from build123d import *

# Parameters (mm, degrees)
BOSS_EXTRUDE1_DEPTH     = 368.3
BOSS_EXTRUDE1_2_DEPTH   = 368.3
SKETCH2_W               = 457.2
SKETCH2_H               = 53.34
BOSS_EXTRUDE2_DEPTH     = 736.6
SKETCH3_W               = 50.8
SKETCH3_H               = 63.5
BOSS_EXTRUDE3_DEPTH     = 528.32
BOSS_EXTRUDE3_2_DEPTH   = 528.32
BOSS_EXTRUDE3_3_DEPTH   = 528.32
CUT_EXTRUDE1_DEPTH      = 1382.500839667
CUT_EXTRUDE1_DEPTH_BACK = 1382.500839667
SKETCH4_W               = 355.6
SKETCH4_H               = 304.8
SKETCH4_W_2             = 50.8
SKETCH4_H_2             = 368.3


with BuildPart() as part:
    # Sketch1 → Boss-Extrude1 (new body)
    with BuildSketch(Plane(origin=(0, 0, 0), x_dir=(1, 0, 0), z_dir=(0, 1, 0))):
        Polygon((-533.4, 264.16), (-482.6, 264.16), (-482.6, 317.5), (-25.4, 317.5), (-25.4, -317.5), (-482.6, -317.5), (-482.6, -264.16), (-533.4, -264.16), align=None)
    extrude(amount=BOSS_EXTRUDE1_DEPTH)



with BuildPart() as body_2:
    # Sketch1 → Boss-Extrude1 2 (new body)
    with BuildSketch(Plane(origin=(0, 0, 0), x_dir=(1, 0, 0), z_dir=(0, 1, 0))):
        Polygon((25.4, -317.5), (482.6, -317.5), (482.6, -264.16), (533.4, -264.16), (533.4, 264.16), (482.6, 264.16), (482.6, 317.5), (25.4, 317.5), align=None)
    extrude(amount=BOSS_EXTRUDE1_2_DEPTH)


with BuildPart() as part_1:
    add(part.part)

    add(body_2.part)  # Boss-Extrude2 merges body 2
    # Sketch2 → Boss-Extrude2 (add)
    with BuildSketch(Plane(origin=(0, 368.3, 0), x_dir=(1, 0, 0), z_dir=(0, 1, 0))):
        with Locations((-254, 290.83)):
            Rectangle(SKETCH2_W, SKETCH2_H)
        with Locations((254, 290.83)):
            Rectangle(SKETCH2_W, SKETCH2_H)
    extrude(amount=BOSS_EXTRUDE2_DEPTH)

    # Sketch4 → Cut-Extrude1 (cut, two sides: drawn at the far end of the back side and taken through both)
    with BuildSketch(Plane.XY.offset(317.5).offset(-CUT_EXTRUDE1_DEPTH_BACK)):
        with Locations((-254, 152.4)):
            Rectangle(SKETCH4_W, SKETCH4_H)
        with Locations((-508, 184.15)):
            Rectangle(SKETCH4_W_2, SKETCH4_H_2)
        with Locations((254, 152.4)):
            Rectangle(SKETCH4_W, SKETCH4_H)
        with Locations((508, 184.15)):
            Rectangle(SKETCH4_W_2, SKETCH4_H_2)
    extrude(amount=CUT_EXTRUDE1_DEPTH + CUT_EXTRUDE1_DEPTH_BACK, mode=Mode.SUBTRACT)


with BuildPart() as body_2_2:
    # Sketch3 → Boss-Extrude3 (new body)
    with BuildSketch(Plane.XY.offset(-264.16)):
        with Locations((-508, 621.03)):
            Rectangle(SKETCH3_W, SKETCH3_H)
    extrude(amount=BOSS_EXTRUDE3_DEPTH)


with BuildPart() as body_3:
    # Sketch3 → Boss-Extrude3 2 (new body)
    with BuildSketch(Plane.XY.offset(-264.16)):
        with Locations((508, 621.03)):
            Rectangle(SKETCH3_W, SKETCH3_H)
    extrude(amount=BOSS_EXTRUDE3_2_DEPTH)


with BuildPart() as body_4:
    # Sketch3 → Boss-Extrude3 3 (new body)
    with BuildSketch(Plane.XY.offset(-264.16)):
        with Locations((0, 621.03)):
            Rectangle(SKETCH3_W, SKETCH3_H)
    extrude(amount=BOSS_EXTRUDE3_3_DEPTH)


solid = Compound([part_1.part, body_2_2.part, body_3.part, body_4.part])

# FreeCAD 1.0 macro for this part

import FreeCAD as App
import Part
import Sketcher
Q = App.Units.Quantity

doc = App.newDocument("Part")
params = doc.addObject("Spreadsheet::Sheet", "Params")
for row, (alias, value) in enumerate([
    ("sketch1_width", "2 in"),
    ("sketch1_width2", "18 in"),
    ("sketch1_height", "25 in"),
    ("sketch1_height2", "20.8 in"),
    ("pad1_length", "14.5 in"),
    ("sketch2_width", "18 in"),
    ("sketch2_width2", "2 in"),
    ("sketch2_height", "25 in"),
    ("sketch2_height2", "2.1 in"),
    ("pad2_length", "14.5 in"),
    ("sketch3_width", "18 in"),
    ("sketch3_height", "2.1 in"),
    ("pad3_length", "29 in"),
    ("sketch4_width", "14 in"),
    ("sketch4_width2", "2 in"),
    ("sketch4_height", "12 in"),
    ("sketch4_height2", "14.5 in"),
    ("sketch5_width", "2 in"),
    ("sketch5_height", "2.5 in"),
    ("pad4_length", "20.8 in"),
    ("sketch6_width", "2 in"),
    ("sketch6_height", "2.5 in"),
    ("pad5_length", "20.8 in"),
    ("sketch7_width", "2 in"),
    ("sketch7_height", "2.5 in"),
    ("pad6_length", "20.8 in"),
], start=1):
    params.set(f"A{row}", alias)
    params.set(f"B{row}", "=" + value)
    params.setAlias(f"B{row}", alias)

body = doc.addObject("PartDesign::Body", "Body")

# Sketch on XZ plane
sketch1 = body.newObject("Sketcher::SketchObject", "Sketch")
sketch1.AttachmentSupport = (doc.getObject("XZ_Plane"), [""])
sketch1.MapMode = "FlatFace"
sketch1.addGeometry(Part.LineSegment(App.Vector(-483, -264, 0), App.Vector(-533, -264, 0)), False)
sketch1.addGeometry(Part.LineSegment(App.Vector(-533, -264, 0), App.Vector(-533, 264, 0)), False)
sketch1.addGeometry(Part.LineSegment(App.Vector(-533, 264, 0), App.Vector(-483, 264, 0)), False)
sketch1.addGeometry(Part.LineSegment(App.Vector(-483, 264, 0), App.Vector(-483, 318, 0)), False)
sketch1.addGeometry(Part.LineSegment(App.Vector(-483, 318, 0), App.Vector(-25, 318, 0)), False)
sketch1.addGeometry(Part.LineSegment(App.Vector(-25, 318, 0), App.Vector(-25, -318, 0)), False)
sketch1.addGeometry(Part.LineSegment(App.Vector(-25, -318, 0), App.Vector(-483, -318, 0)), False)
sketch1.addGeometry(Part.LineSegment(App.Vector(-483, -318, 0), App.Vector(-483, -264, 0)), False)
sketch1.addConstraint(Sketcher.Constraint("Coincident", 0, 2, 1, 1))
sketch1.addConstraint(Sketcher.Constraint("Coincident", 1, 2, 2, 1))
sketch1.addConstraint(Sketcher.Constraint("Coincident", 2, 2, 3, 1))
sketch1.addConstraint(Sketcher.Constraint("Coincident", 3, 2, 4, 1))
sketch1.addConstraint(Sketcher.Constraint("Coincident", 4, 2, 5, 1))
sketch1.addConstraint(Sketcher.Constraint("Coincident", 5, 2, 6, 1))
sketch1.addConstraint(Sketcher.Constraint("Coincident", 6, 2, 7, 1))
sketch1.addConstraint(Sketcher.Constraint("Coincident", 7, 2, 0, 1))
sketch1.addConstraint(Sketcher.Constraint("Horizontal", 0))
sketch1.addConstraint(Sketcher.Constraint("Vertical", 1))
sketch1.addConstraint(Sketcher.Constraint("Horizontal", 2))
sketch1.addConstraint(Sketcher.Constraint("Vertical", 3))
sketch1.addConstraint(Sketcher.Constraint("Horizontal", 4))
sketch1.addConstraint(Sketcher.Constraint("Vertical", 5))
sketch1.addConstraint(Sketcher.Constraint("Horizontal", 6))
sketch1.addConstraint(Sketcher.Constraint("Vertical", 7))
sketch1.addConstraint(Sketcher.Constraint("Symmetric", 3, 2, 6, 2, -1))
sketch1.addConstraint(Sketcher.Constraint("Equal", 3, 7))
sketch1.addConstraint(Sketcher.Constraint("DistanceX", 0, 2, 0, 1, Q("2 in")))
sketch1.addConstraint(Sketcher.Constraint("DistanceX", 4, 1, 4, 2, Q("18 in")))
sketch1.addConstraint(Sketcher.Constraint("DistanceY", 5, 2, 5, 1, Q("25 in")))
sketch1.addConstraint(Sketcher.Constraint("DistanceY", 1, 1, 1, 2, Q("20.8 in")))
sketch1.addConstraint(Sketcher.Constraint("DistanceX", 0, 2, -1, 1, Q("21 in")))
sketch1.setExpression("Constraints[18]", "Params.sketch1_width")
sketch1.setExpression("Constraints[19]", "Params.sketch1_width2")
sketch1.setExpression("Constraints[20]", "Params.sketch1_height")
sketch1.setExpression("Constraints[21]", "Params.sketch1_height2")
pad1 = body.newObject("PartDesign::Pad", "Pad")
pad1.Profile = sketch1
pad1.setExpression("Length", "Params.pad1_length")
pad1.Reversed = True
body2 = doc.addObject("PartDesign::Body", "Body001")

# Sketch on XZ plane
sketch2 = body2.newObject("Sketcher::SketchObject", "Sketch001")
sketch2.AttachmentSupport = (doc.getObject("XZ_Plane001"), [""])
sketch2.MapMode = "FlatFace"
sketch2.addGeometry(Part.LineSegment(App.Vector(25, 318, 0), App.Vector(483, 318, 0)), False)
sketch2.addGeometry(Part.LineSegment(App.Vector(483, 318, 0), App.Vector(483, 264, 0)), False)
sketch2.addGeometry(Part.LineSegment(App.Vector(483, 264, 0), App.Vector(533, 264, 0)), False)
sketch2.addGeometry(Part.LineSegment(App.Vector(533, 264, 0), App.Vector(533, -264, 0)), False)
sketch2.addGeometry(Part.LineSegment(App.Vector(533, -264, 0), App.Vector(483, -264, 0)), False)
sketch2.addGeometry(Part.LineSegment(App.Vector(483, -264, 0), App.Vector(483, -318, 0)), False)
sketch2.addGeometry(Part.LineSegment(App.Vector(483, -318, 0), App.Vector(25, -318, 0)), False)
sketch2.addGeometry(Part.LineSegment(App.Vector(25, -318, 0), App.Vector(25, 318, 0)), False)
sketch2.addConstraint(Sketcher.Constraint("Coincident", 0, 2, 1, 1))
sketch2.addConstraint(Sketcher.Constraint("Coincident", 1, 2, 2, 1))
sketch2.addConstraint(Sketcher.Constraint("Coincident", 2, 2, 3, 1))
sketch2.addConstraint(Sketcher.Constraint("Coincident", 3, 2, 4, 1))
sketch2.addConstraint(Sketcher.Constraint("Coincident", 4, 2, 5, 1))
sketch2.addConstraint(Sketcher.Constraint("Coincident", 5, 2, 6, 1))
sketch2.addConstraint(Sketcher.Constraint("Coincident", 6, 2, 7, 1))
sketch2.addConstraint(Sketcher.Constraint("Coincident", 7, 2, 0, 1))
sketch2.addConstraint(Sketcher.Constraint("Horizontal", 0))
sketch2.addConstraint(Sketcher.Constraint("Vertical", 1))
sketch2.addConstraint(Sketcher.Constraint("Horizontal", 2))
sketch2.addConstraint(Sketcher.Constraint("Vertical", 3))
sketch2.addConstraint(Sketcher.Constraint("Horizontal", 4))
sketch2.addConstraint(Sketcher.Constraint("Vertical", 5))
sketch2.addConstraint(Sketcher.Constraint("Horizontal", 6))
sketch2.addConstraint(Sketcher.Constraint("Vertical", 7))
sketch2.addConstraint(Sketcher.Constraint("Symmetric", 1, 2, 4, 2, -1))
sketch2.addConstraint(Sketcher.Constraint("Equal", 1, 5))
sketch2.addConstraint(Sketcher.Constraint("DistanceX", 0, 1, 0, 2, Q("18 in")))
sketch2.addConstraint(Sketcher.Constraint("DistanceX", 2, 1, 2, 2, Q("2 in")))
sketch2.addConstraint(Sketcher.Constraint("DistanceY", 7, 1, 7, 2, Q("25 in")))
sketch2.addConstraint(Sketcher.Constraint("DistanceY", 1, 2, 1, 1, Q("2.1 in")))
sketch2.addConstraint(Sketcher.Constraint("DistanceX", -1, 1, 0, 2, Q("19 in")))
sketch2.setExpression("Constraints[18]", "Params.sketch2_width")
sketch2.setExpression("Constraints[19]", "Params.sketch2_width2")
sketch2.setExpression("Constraints[20]", "Params.sketch2_height")
sketch2.setExpression("Constraints[21]", "Params.sketch2_height2")
pad2 = body2.newObject("PartDesign::Pad", "Pad001")
pad2.Profile = sketch2
pad2.setExpression("Length", "Params.pad2_length")
pad2.Reversed = True
body.AllowCompound = True
doc.recompute()

boolean = body.newObject("PartDesign::Boolean", "Boolean")
boolean.Type = "Fuse"
boolean.addObjects([body2])

# Sketch on XZ plane
sketch3 = body.newObject("Sketcher::SketchObject", "Sketch002")
sketch3.AttachmentSupport = (doc.getObject("XZ_Plane"), [""])
sketch3.MapMode = "FlatFace"
sketch3.AttachmentOffset = App.Placement(App.Vector(0, 0, -14.5 * 25.4), App.Rotation())
sketch3.addGeometry(Part.LineSegment(App.Vector(-483, -318, 0), App.Vector(-483, -264, 0)), False)
sketch3.addGeometry(Part.LineSegment(App.Vector(-483, -264, 0), App.Vector(-25, -264, 0)), False)
sketch3.addGeometry(Part.LineSegment(App.Vector(-25, -264, 0), App.Vector(-25, -318, 0)), False)
sketch3.addGeometry(Part.LineSegment(App.Vector(-25, -318, 0), App.Vector(-483, -318, 0)), False)
sketch3.addGeometry(Part.LineSegment(App.Vector(25, -318, 0), App.Vector(25, -264, 0)), False)
sketch3.addGeometry(Part.LineSegment(App.Vector(25, -264, 0), App.Vector(483, -264, 0)), False)
sketch3.addGeometry(Part.LineSegment(App.Vector(483, -264, 0), App.Vector(483, -318, 0)), False)
sketch3.addGeometry(Part.LineSegment(App.Vector(483, -318, 0), App.Vector(25, -318, 0)), False)
sketch3.addConstraint(Sketcher.Constraint("Coincident", 0, 2, 1, 1))
sketch3.addConstraint(Sketcher.Constraint("Coincident", 1, 2, 2, 1))
sketch3.addConstraint(Sketcher.Constraint("Coincident", 2, 2, 3, 1))
sketch3.addConstraint(Sketcher.Constraint("Coincident", 3, 2, 0, 1))
sketch3.addConstraint(Sketcher.Constraint("Coincident", 4, 2, 5, 1))
sketch3.addConstraint(Sketcher.Constraint("Coincident", 5, 2, 6, 1))
sketch3.addConstraint(Sketcher.Constraint("Coincident", 6, 2, 7, 1))
sketch3.addConstraint(Sketcher.Constraint("Coincident", 7, 2, 4, 1))
sketch3.addConstraint(Sketcher.Constraint("Vertical", 0))
sketch3.addConstraint(Sketcher.Constraint("Horizontal", 1))
sketch3.addConstraint(Sketcher.Constraint("Vertical", 2))
sketch3.addConstraint(Sketcher.Constraint("Horizontal", 3))
sketch3.addConstraint(Sketcher.Constraint("Vertical", 4))
sketch3.addConstraint(Sketcher.Constraint("Horizontal", 5))
sketch3.addConstraint(Sketcher.Constraint("Vertical", 6))
sketch3.addConstraint(Sketcher.Constraint("Horizontal", 7))
sketch3.addConstraint(Sketcher.Constraint("Symmetric", 1, 2, 4, 2, -2))
sketch3.addConstraint(Sketcher.Constraint("Symmetric", 3, 2, 6, 2, -2))
sketch3.addConstraint(Sketcher.Constraint("DistanceX", 1, 1, 1, 2, Q("18 in")))
sketch3.addConstraint(Sketcher.Constraint("DistanceY", 0, 1, 0, 2, Q("2.1 in")))
sketch3.addConstraint(Sketcher.Constraint("DistanceX", 0, 2, -1, 1, Q("19 in")))
sketch3.addConstraint(Sketcher.Constraint("DistanceY", 0, 2, -1, 1, Q("10.4 in")))
sketch3.setExpression("Constraints[18]", "Params.sketch3_width")
sketch3.setExpression("Constraints[19]", "Params.sketch3_height")
pad3 = body.newObject("PartDesign::Pad", "Pad002")
pad3.Profile = sketch3
pad3.setExpression("Length", "Params.pad3_length")
pad3.Reversed = True

# Sketch on XY plane
sketch4 = body.newObject("Sketcher::SketchObject", "Sketch003")
sketch4.AttachmentSupport = (doc.getObject("XY_Plane"), [""])
sketch4.MapMode = "FlatFace"
sketch4.AttachmentOffset = App.Placement(App.Vector(0, 0, 12.5 * 25.4), App.Rotation())
sketch4.addGeometry(Part.LineSegment(App.Vector(-432, 305, 0), App.Vector(-432, 0, 0)), False)
sketch4.addGeometry(Part.LineSegment(App.Vector(-432, 0, 0), App.Vector(-76, 0, 0)), False)
sketch4.addGeometry(Part.LineSegment(App.Vector(-76, 0, 0), App.Vector(-76, 305, 0)), False)
sketch4.addGeometry(Part.LineSegment(App.Vector(-76, 305, 0), App.Vector(-432, 305, 0)), False)
sketch4.addGeometry(Part.LineSegment(App.Vector(-533, 368, 0), App.Vector(-533, 0, 0)), False)
sketch4.addGeometry(Part.LineSegment(App.Vector(-533, 0, 0), App.Vector(-483, 0, 0)), False)
sketch4.addGeometry(Part.LineSegment(App.Vector(-483, 0, 0), App.Vector(-483, 368, 0)), False)
sketch4.addGeometry(Part.LineSegment(App.Vector(-483, 368, 0), App.Vector(-533, 368, 0)), False)
sketch4.addGeometry(Part.LineSegment(App.Vector(76, 305, 0), App.Vector(76, 0, 0)), False)
sketch4.addGeometry(Part.LineSegment(App.Vector(76, 0, 0), App.Vector(432, 0, 0)), False)
sketch4.addGeometry(Part.LineSegment(App.Vector(432, 0, 0), App.Vector(432, 305, 0)), False)
sketch4.addGeometry(Part.LineSegment(App.Vector(432, 305, 0), App.Vector(76, 305, 0)), False)
sketch4.addGeometry(Part.LineSegment(App.Vector(483, 368, 0), App.Vector(483, 0, 0)), False)
sketch4.addGeometry(Part.LineSegment(App.Vector(483, 0, 0), App.Vector(533, 0, 0)), False)
sketch4.addGeometry(Part.LineSegment(App.Vector(533, 0, 0), App.Vector(533, 368, 0)), False)
sketch4.addGeometry(Part.LineSegment(App.Vector(533, 368, 0), App.Vector(483, 368, 0)), False)
sketch4.addConstraint(Sketcher.Constraint("Coincident", 0, 2, 1, 1))
sketch4.addConstraint(Sketcher.Constraint("Coincident", 1, 2, 2, 1))
sketch4.addConstraint(Sketcher.Constraint("Coincident", 2, 2, 3, 1))
sketch4.addConstraint(Sketcher.Constraint("Coincident", 3, 2, 0, 1))
sketch4.addConstraint(Sketcher.Constraint("Coincident", 4, 2, 5, 1))
sketch4.addConstraint(Sketcher.Constraint("Coincident", 5, 2, 6, 1))
sketch4.addConstraint(Sketcher.Constraint("Coincident", 6, 2, 7, 1))
sketch4.addConstraint(Sketcher.Constraint("Coincident", 7, 2, 4, 1))
sketch4.addConstraint(Sketcher.Constraint("Coincident", 8, 2, 9, 1))
sketch4.addConstraint(Sketcher.Constraint("Coincident", 9, 2, 10, 1))
sketch4.addConstraint(Sketcher.Constraint("Coincident", 10, 2, 11, 1))
sketch4.addConstraint(Sketcher.Constraint("Coincident", 11, 2, 8, 1))
sketch4.addConstraint(Sketcher.Constraint("Coincident", 12, 2, 13, 1))
sketch4.addConstraint(Sketcher.Constraint("Coincident", 13, 2, 14, 1))
sketch4.addConstraint(Sketcher.Constraint("Coincident", 14, 2, 15, 1))
sketch4.addConstraint(Sketcher.Constraint("Coincident", 15, 2, 12, 1))
sketch4.addConstraint(Sketcher.Constraint("Vertical", 0))
sketch4.addConstraint(Sketcher.Constraint("Horizontal", 1))
sketch4.addConstraint(Sketcher.Constraint("Vertical", 2))
sketch4.addConstraint(Sketcher.Constraint("Horizontal", 3))
sketch4.addConstraint(Sketcher.Constraint("Vertical", 4))
sketch4.addConstraint(Sketcher.Constraint("Horizontal", 5))
sketch4.addConstraint(Sketcher.Constraint("Vertical", 6))
sketch4.addConstraint(Sketcher.Constraint("Horizontal", 7))
sketch4.addConstraint(Sketcher.Constraint("Vertical", 8))
sketch4.addConstraint(Sketcher.Constraint("Horizontal", 9))
sketch4.addConstraint(Sketcher.Constraint("Vertical", 10))
sketch4.addConstraint(Sketcher.Constraint("Horizontal", 11))
sketch4.addConstraint(Sketcher.Constraint("Vertical", 12))
sketch4.addConstraint(Sketcher.Constraint("Horizontal", 13))
sketch4.addConstraint(Sketcher.Constraint("Vertical", 14))
sketch4.addConstraint(Sketcher.Constraint("Horizontal", 15))
sketch4.addConstraint(Sketcher.Constraint("Symmetric", 1, 2, 8, 2, -1, 1))
sketch4.addConstraint(Sketcher.Constraint("Symmetric", 5, 2, 12, 2, -1, 1))
sketch4.addConstraint(Sketcher.Constraint("Symmetric", 0, 2, 9, 2, -2))
sketch4.addConstraint(Sketcher.Constraint("Symmetric", 4, 2, 13, 2, -2))
sketch4.addConstraint(Sketcher.Constraint("Horizontal", 3, 2, 10, 2))
sketch4.addConstraint(Sketcher.Constraint("Horizontal", 7, 2, 14, 2))
sketch4.addConstraint(Sketcher.Constraint("DistanceX", 1, 1, 1, 2, Q("14 in")))
sketch4.addConstraint(Sketcher.Constraint("DistanceX", 5, 1, 5, 2, Q("2 in")))
sketch4.addConstraint(Sketcher.Constraint("DistanceY", 0, 2, 0, 1, Q("12 in")))
sketch4.addConstraint(Sketcher.Constraint("DistanceY", 4, 2, 4, 1, Q("14.5 in")))
sketch4.addConstraint(Sketcher.Constraint("DistanceX", 0, 2, -1, 1, Q("17 in")))
sketch4.addConstraint(Sketcher.Constraint("DistanceX", 4, 2, -1, 1, Q("21 in")))
sketch4.setExpression("Constraints[38]", "Params.sketch4_width")
sketch4.setExpression("Constraints[39]", "Params.sketch4_width2")
sketch4.setExpression("Constraints[40]", "Params.sketch4_height")
sketch4.setExpression("Constraints[41]", "Params.sketch4_height2")
pocket1 = body.newObject("PartDesign::Pocket", "Pocket")
pocket1.Profile = sketch4
pocket1.Type = "ThroughAll"
pocket1.Midplane = True
body3 = doc.addObject("PartDesign::Body", "Body002")

# Sketch on XY plane
sketch5 = body3.newObject("Sketcher::SketchObject", "Sketch004")
sketch5.AttachmentSupport = (doc.getObject("XY_Plane002"), [""])
sketch5.MapMode = "FlatFace"
sketch5.AttachmentOffset = App.Placement(App.Vector(0, 0, -10.4 * 25.4), App.Rotation())
sketch5.addGeometry(Part.LineSegment(App.Vector(-533, 653, 0), App.Vector(-533, 589, 0)), False)
sketch5.addGeometry(Part.LineSegment(App.Vector(-533, 589, 0), App.Vector(-483, 589, 0)), False)
sketch5.addGeometry(Part.LineSegment(App.Vector(-483, 589, 0), App.Vector(-483, 653, 0)), False)
sketch5.addGeometry(Part.LineSegment(App.Vector(-483, 653, 0), App.Vector(-533, 653, 0)), False)
sketch5.addConstraint(Sketcher.Constraint("Coincident", 0, 2, 1, 1))
sketch5.addConstraint(Sketcher.Constraint("Coincident", 1, 2, 2, 1))
sketch5.addConstraint(Sketcher.Constraint("Coincident", 2, 2, 3, 1))
sketch5.addConstraint(Sketcher.Constraint("Coincident", 3, 2, 0, 1))
sketch5.addConstraint(Sketcher.Constraint("Vertical", 0))
sketch5.addConstraint(Sketcher.Constraint("Horizontal", 1))
sketch5.addConstraint(Sketcher.Constraint("Vertical", 2))
sketch5.addConstraint(Sketcher.Constraint("Horizontal", 3))
sketch5.addConstraint(Sketcher.Constraint("DistanceX", 1, 1, 1, 2, Q("2 in")))
sketch5.addConstraint(Sketcher.Constraint("DistanceY", 0, 2, 0, 1, Q("2.5 in")))
sketch5.addConstraint(Sketcher.Constraint("DistanceX", 0, 2, -1, 1, Q("21 in")))
sketch5.addConstraint(Sketcher.Constraint("DistanceY", -1, 1, 0, 2, Q("23.2 in")))
sketch5.setExpression("Constraints[8]", "Params.sketch5_width")
sketch5.setExpression("Constraints[9]", "Params.sketch5_height")
pad4 = body3.newObject("PartDesign::Pad", "Pad003")
pad4.Profile = sketch5
pad4.setExpression("Length", "Params.pad4_length")
body4 = doc.addObject("PartDesign::Body", "Body003")

# Sketch on XY plane
sketch6 = body4.newObject("Sketcher::SketchObject", "Sketch005")
sketch6.AttachmentSupport = (doc.getObject("XY_Plane003"), [""])
sketch6.MapMode = "FlatFace"
sketch6.AttachmentOffset = App.Placement(App.Vector(0, 0, -10.4 * 25.4), App.Rotation())
sketch6.addGeometry(Part.LineSegment(App.Vector(483, 653, 0), App.Vector(483, 589, 0)), False)
sketch6.addGeometry(Part.LineSegment(App.Vector(483, 589, 0), App.Vector(533, 589, 0)), False)
sketch6.addGeometry(Part.LineSegment(App.Vector(533, 589, 0), App.Vector(533, 653, 0)), False)
sketch6.addGeometry(Part.LineSegment(App.Vector(533, 653, 0), App.Vector(483, 653, 0)), False)
sketch6.addConstraint(Sketcher.Constraint("Coincident", 0, 2, 1, 1))
sketch6.addConstraint(Sketcher.Constraint("Coincident", 1, 2, 2, 1))
sketch6.addConstraint(Sketcher.Constraint("Coincident", 2, 2, 3, 1))
sketch6.addConstraint(Sketcher.Constraint("Coincident", 3, 2, 0, 1))
sketch6.addConstraint(Sketcher.Constraint("Vertical", 0))
sketch6.addConstraint(Sketcher.Constraint("Horizontal", 1))
sketch6.addConstraint(Sketcher.Constraint("Vertical", 2))
sketch6.addConstraint(Sketcher.Constraint("Horizontal", 3))
sketch6.addConstraint(Sketcher.Constraint("DistanceX", 1, 1, 1, 2, Q("2 in")))
sketch6.addConstraint(Sketcher.Constraint("DistanceY", 0, 2, 0, 1, Q("2.5 in")))
sketch6.addConstraint(Sketcher.Constraint("DistanceX", -1, 1, 0, 2, Q("19 in")))
sketch6.addConstraint(Sketcher.Constraint("DistanceY", -1, 1, 0, 2, Q("23.2 in")))
sketch6.setExpression("Constraints[8]", "Params.sketch6_width")
sketch6.setExpression("Constraints[9]", "Params.sketch6_height")
pad5 = body4.newObject("PartDesign::Pad", "Pad004")
pad5.Profile = sketch6
pad5.setExpression("Length", "Params.pad5_length")
body5 = doc.addObject("PartDesign::Body", "Body004")

# Sketch on XY plane
sketch7 = body5.newObject("Sketcher::SketchObject", "Sketch006")
sketch7.AttachmentSupport = (doc.getObject("XY_Plane004"), [""])
sketch7.MapMode = "FlatFace"
sketch7.AttachmentOffset = App.Placement(App.Vector(0, 0, -10.4 * 25.4), App.Rotation())
sketch7.addGeometry(Part.LineSegment(App.Vector(-25, 653, 0), App.Vector(-25, 589, 0)), False)
sketch7.addGeometry(Part.LineSegment(App.Vector(-25, 589, 0), App.Vector(25, 589, 0)), False)
sketch7.addGeometry(Part.LineSegment(App.Vector(25, 589, 0), App.Vector(25, 653, 0)), False)
sketch7.addGeometry(Part.LineSegment(App.Vector(25, 653, 0), App.Vector(-25, 653, 0)), False)
sketch7.addConstraint(Sketcher.Constraint("Coincident", 0, 2, 1, 1))
sketch7.addConstraint(Sketcher.Constraint("Coincident", 1, 2, 2, 1))
sketch7.addConstraint(Sketcher.Constraint("Coincident", 2, 2, 3, 1))
sketch7.addConstraint(Sketcher.Constraint("Coincident", 3, 2, 0, 1))
sketch7.addConstraint(Sketcher.Constraint("Vertical", 0))
sketch7.addConstraint(Sketcher.Constraint("Horizontal", 1))
sketch7.addConstraint(Sketcher.Constraint("Vertical", 2))
sketch7.addConstraint(Sketcher.Constraint("Horizontal", 3))
sketch7.addConstraint(Sketcher.Constraint("DistanceX", 1, 1, 1, 2, Q("2 in")))
sketch7.addConstraint(Sketcher.Constraint("DistanceY", 0, 2, 0, 1, Q("2.5 in")))
sketch7.addConstraint(Sketcher.Constraint("DistanceX", 0, 2, -1, 1, Q("1 in")))
sketch7.addConstraint(Sketcher.Constraint("DistanceY", -1, 1, 0, 2, Q("23.2 in")))
sketch7.setExpression("Constraints[8]", "Params.sketch7_width")
sketch7.setExpression("Constraints[9]", "Params.sketch7_height")
pad6 = body5.newObject("PartDesign::Pad", "Pad005")
pad6.Profile = sketch7
pad6.setExpression("Length", "Params.pad6_length")

doc.recompute()
